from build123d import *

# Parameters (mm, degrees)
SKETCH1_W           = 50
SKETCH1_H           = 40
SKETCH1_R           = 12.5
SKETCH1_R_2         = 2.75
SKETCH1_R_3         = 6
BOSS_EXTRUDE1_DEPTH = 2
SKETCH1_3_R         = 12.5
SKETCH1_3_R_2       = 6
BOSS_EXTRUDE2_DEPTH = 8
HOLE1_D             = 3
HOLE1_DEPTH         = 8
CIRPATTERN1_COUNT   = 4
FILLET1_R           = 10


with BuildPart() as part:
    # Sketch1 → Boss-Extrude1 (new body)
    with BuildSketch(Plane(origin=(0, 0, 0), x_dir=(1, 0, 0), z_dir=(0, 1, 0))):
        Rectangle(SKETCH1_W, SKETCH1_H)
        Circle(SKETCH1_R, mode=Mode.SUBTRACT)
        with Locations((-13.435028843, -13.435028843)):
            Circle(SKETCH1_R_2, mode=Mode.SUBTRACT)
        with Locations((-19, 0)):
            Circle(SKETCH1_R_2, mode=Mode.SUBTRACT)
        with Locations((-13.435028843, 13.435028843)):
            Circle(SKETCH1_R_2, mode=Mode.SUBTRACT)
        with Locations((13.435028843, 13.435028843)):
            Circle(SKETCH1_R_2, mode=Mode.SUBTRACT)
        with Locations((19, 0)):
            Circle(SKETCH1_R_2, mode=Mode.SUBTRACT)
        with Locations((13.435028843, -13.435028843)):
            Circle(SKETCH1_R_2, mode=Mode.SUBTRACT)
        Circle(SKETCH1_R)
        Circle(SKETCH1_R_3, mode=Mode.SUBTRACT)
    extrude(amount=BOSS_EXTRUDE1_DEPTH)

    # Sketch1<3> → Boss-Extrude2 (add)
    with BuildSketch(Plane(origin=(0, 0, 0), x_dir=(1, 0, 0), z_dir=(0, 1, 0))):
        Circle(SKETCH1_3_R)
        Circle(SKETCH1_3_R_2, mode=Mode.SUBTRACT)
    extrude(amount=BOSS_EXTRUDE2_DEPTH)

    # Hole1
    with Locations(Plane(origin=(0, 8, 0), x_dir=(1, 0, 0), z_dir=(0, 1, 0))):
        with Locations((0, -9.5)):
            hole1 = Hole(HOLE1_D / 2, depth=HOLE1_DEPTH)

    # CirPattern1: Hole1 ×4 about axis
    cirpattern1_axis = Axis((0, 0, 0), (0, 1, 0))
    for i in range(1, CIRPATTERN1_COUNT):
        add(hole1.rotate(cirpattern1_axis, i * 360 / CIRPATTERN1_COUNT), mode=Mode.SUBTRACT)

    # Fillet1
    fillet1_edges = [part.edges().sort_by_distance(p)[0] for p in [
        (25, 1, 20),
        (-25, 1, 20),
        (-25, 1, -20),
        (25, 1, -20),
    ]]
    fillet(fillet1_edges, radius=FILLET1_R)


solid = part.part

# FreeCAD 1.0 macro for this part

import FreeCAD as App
import Part
import Sketcher
from FreeCAD import Vector


def edges_at(feature, points):
    """Names of the edges that pass closest to the given points."""
    edges = feature.Shape.Edges
    near = lambda p: min(range(len(edges)), key=lambda i: edges[i].distToShape(Part.Vertex(*p))[0])
    return sorted({f"Edge{near(p) + 1}" for p in points})

doc = App.newDocument("Part")
body = doc.addObject("PartDesign::Body", "Body")

# Sketch on XZ plane
sketch1 = doc.addObject("Sketcher::SketchObject", "Sketch")
body.addObject(sketch1)
sketch1.AttachmentSupport = (doc.XZ_Plane, [""])
sketch1.MapMode = "FlatFace"
sketch1.addGeometry(Part.LineSegment(Vector(-25, -20, 0), Vector(-25, 20, 0)), False)
sketch1.addGeometry(Part.LineSegment(Vector(-25, 20, 0), Vector(25, 20, 0)), False)
sketch1.addGeometry(Part.LineSegment(Vector(25, 20, 0), Vector(25, -20, 0)), False)
sketch1.addGeometry(Part.LineSegment(Vector(25, -20, 0), Vector(-25, -20, 0)), False)
sketch1.addGeometry(Part.Circle(Vector(-13.4, 13.4, 0), Vector(0, 0, 1), 2.8), False)
sketch1.addGeometry(Part.Circle(Vector(13.4, 13.4, 0), Vector(0, 0, 1), 2.8), False)
sketch1.addGeometry(Part.Circle(Vector(-19, 0, 0), Vector(0, 0, 1), 2.8), False)
sketch1.addGeometry(Part.Circle(Vector(-13.4, -13.4, 0), Vector(0, 0, 1), 2.8), False)
sketch1.addGeometry(Part.Circle(Vector(0, 0, 0), Vector(0, 0, 1), 6), False)
sketch1.addGeometry(Part.Circle(Vector(19, 0, 0), Vector(0, 0, 1), 2.8), False)
sketch1.addGeometry(Part.Circle(Vector(13.4, -13.4, 0), Vector(0, 0, 1), 2.8), False)
sketch1.addConstraint(Sketcher.Constraint("Coincident", 0, 2, 1, 1))
sketch1.addConstraint(Sketcher.Constraint("Coincident", 1, 2, 2, 1))
sketch1.addConstraint(Sketcher.Constraint("Coincident", 2, 2, 3, 1))
sketch1.addConstraint(Sketcher.Constraint("Coincident", 3, 2, 0, 1))
sketch1.addConstraint(Sketcher.Constraint("Vertical", 0))
sketch1.addConstraint(Sketcher.Constraint("Horizontal", 1))
sketch1.addConstraint(Sketcher.Constraint("Vertical", 2))
sketch1.addConstraint(Sketcher.Constraint("Horizontal", 3))
sketch1.addConstraint(Sketcher.Constraint("Coincident", 8, 3, -1, 1))
sketch1.addConstraint(Sketcher.Constraint("Equal", 4, 5))
sketch1.addConstraint(Sketcher.Constraint("Equal", 5, 6))
sketch1.addConstraint(Sketcher.Constraint("Equal", 6, 7))
sketch1.addConstraint(Sketcher.Constraint("Equal", 7, 9))
sketch1.addConstraint(Sketcher.Constraint("Equal", 9, 10))
sketch1.addConstraint(Sketcher.Constraint("Symmetric", 5, 3, 7, 3, -1, 1))
sketch1.addConstraint(Sketcher.Constraint("Symmetric", 6, 3, 9, 3, -1, 1))
sketch1.addConstraint(Sketcher.Constraint("Symmetric", 4, 3, 10, 3, -1, 1))
sketch1.addConstraint(Sketcher.Constraint("Symmetric", 0, 2, 2, 2, -1, 1))
sketch1.addConstraint(Sketcher.Constraint("Symmetric", 4, 3, 5, 3, -2))
sketch1.addConstraint(Sketcher.Constraint("PointOnObject", 6, 3, -1))
sketch1.addConstraint(Sketcher.Constraint("Diameter", 8, 12.0))
sketch1.addConstraint(Sketcher.Constraint("Diameter", 4, 5.5))
sketch1.addConstraint(Sketcher.Constraint("DistanceX", 1, 1, 1, 2, 50.0))
sketch1.addConstraint(Sketcher.Constraint("DistanceY", 0, 1, 0, 2, 40.0))
sketch1.addConstraint(Sketcher.Constraint("DistanceX", 6, 3, -1, 1, 19.0))
sketch1.addConstraint(Sketcher.Constraint("DistanceX", 4, 3, -1, 1, 13.435029))
sketch1.addConstraint(Sketcher.Constraint("DistanceY", -1, 1, 4, 3, 13.435029))
pad1 = doc.addObject("PartDesign::Pad", "Pad")
body.addObject(pad1)
pad1.Profile = sketch1
pad1.Length = 2
pad1.Reversed = True

# Sketch on XZ plane
sketch2 = doc.addObject("Sketcher::SketchObject", "Sketch001")
body.addObject(sketch2)
sketch2.AttachmentSupport = (doc.XZ_Plane, [""])
sketch2.MapMode = "FlatFace"
sketch2.addGeometry(Part.Circle(Vector(0, 0, 0), Vector(0, 0, 1), 12), False)
sketch2.addGeometry(Part.Circle(Vector(0, 0, 0), Vector(0, 0, 1), 6), False)
sketch2.addConstraint(Sketcher.Constraint("Coincident", 0, 3, -1, 1))
sketch2.addConstraint(Sketcher.Constraint("Coincident", 1, 3, -1, 1))
sketch2.addConstraint(Sketcher.Constraint("Diameter", 0, 25.0))
sketch2.addConstraint(Sketcher.Constraint("Diameter", 1, 12.0))
pad2 = doc.addObject("PartDesign::Pad", "Pad001")
body.addObject(pad2)
pad2.Profile = sketch2
pad2.Length = 8
pad2.Reversed = True

# Sketch on XZ plane
sketch3 = doc.addObject("Sketcher::SketchObject", "Sketch002")
body.addObject(sketch3)
sketch3.AttachmentSupport = (doc.XZ_Plane, [""])
sketch3.MapMode = "FlatFace"
sketch3.AttachmentOffset = App.Placement(Vector(0, 0, -8), App.Rotation())
sketch3.addGeometry(Part.Circle(Vector(0, 9.5, 0), Vector(0, 0, 1), 1.5), False)
sketch3.addConstraint(Sketcher.Constraint("PointOnObject", 0, 3, -2))
sketch3.addConstraint(Sketcher.Constraint("Diameter", 0, 3.0))
sketch3.addConstraint(Sketcher.Constraint("DistanceY", -1, 1, 0, 3, 9.5))
doc.recompute()
hole = doc.addObject("PartDesign::Hole", "Hole")
body.addObject(hole)
hole.Profile = sketch3
hole.ThreadType = "None"
hole.Diameter = 3
hole.DepthType = "Dimension"
hole.Depth = 8
hole.DrillPoint = "Flat"
hole.Reversed = True
doc.recompute()

polarpattern = doc.addObject("PartDesign::PolarPattern", "PolarPattern")
body.addObject(polarpattern)
polarpattern.Originals = [hole]
polarpattern.Axis = (doc.Y_Axis, [""])
polarpattern.Angle = 360
polarpattern.Occurrences = 4
body.Tip = polarpattern
doc.recompute()

fillet = doc.addObject("PartDesign::Fillet", "Fillet")
body.addObject(fillet)
fillet.Base = (polarpattern, edges_at(polarpattern, [
    (25, 1, 20),
    (-25, 1, 20),
    (-25, 1, -20),
    (25, 1, -20),
]))
fillet.Radius = 10

doc.recompute()
